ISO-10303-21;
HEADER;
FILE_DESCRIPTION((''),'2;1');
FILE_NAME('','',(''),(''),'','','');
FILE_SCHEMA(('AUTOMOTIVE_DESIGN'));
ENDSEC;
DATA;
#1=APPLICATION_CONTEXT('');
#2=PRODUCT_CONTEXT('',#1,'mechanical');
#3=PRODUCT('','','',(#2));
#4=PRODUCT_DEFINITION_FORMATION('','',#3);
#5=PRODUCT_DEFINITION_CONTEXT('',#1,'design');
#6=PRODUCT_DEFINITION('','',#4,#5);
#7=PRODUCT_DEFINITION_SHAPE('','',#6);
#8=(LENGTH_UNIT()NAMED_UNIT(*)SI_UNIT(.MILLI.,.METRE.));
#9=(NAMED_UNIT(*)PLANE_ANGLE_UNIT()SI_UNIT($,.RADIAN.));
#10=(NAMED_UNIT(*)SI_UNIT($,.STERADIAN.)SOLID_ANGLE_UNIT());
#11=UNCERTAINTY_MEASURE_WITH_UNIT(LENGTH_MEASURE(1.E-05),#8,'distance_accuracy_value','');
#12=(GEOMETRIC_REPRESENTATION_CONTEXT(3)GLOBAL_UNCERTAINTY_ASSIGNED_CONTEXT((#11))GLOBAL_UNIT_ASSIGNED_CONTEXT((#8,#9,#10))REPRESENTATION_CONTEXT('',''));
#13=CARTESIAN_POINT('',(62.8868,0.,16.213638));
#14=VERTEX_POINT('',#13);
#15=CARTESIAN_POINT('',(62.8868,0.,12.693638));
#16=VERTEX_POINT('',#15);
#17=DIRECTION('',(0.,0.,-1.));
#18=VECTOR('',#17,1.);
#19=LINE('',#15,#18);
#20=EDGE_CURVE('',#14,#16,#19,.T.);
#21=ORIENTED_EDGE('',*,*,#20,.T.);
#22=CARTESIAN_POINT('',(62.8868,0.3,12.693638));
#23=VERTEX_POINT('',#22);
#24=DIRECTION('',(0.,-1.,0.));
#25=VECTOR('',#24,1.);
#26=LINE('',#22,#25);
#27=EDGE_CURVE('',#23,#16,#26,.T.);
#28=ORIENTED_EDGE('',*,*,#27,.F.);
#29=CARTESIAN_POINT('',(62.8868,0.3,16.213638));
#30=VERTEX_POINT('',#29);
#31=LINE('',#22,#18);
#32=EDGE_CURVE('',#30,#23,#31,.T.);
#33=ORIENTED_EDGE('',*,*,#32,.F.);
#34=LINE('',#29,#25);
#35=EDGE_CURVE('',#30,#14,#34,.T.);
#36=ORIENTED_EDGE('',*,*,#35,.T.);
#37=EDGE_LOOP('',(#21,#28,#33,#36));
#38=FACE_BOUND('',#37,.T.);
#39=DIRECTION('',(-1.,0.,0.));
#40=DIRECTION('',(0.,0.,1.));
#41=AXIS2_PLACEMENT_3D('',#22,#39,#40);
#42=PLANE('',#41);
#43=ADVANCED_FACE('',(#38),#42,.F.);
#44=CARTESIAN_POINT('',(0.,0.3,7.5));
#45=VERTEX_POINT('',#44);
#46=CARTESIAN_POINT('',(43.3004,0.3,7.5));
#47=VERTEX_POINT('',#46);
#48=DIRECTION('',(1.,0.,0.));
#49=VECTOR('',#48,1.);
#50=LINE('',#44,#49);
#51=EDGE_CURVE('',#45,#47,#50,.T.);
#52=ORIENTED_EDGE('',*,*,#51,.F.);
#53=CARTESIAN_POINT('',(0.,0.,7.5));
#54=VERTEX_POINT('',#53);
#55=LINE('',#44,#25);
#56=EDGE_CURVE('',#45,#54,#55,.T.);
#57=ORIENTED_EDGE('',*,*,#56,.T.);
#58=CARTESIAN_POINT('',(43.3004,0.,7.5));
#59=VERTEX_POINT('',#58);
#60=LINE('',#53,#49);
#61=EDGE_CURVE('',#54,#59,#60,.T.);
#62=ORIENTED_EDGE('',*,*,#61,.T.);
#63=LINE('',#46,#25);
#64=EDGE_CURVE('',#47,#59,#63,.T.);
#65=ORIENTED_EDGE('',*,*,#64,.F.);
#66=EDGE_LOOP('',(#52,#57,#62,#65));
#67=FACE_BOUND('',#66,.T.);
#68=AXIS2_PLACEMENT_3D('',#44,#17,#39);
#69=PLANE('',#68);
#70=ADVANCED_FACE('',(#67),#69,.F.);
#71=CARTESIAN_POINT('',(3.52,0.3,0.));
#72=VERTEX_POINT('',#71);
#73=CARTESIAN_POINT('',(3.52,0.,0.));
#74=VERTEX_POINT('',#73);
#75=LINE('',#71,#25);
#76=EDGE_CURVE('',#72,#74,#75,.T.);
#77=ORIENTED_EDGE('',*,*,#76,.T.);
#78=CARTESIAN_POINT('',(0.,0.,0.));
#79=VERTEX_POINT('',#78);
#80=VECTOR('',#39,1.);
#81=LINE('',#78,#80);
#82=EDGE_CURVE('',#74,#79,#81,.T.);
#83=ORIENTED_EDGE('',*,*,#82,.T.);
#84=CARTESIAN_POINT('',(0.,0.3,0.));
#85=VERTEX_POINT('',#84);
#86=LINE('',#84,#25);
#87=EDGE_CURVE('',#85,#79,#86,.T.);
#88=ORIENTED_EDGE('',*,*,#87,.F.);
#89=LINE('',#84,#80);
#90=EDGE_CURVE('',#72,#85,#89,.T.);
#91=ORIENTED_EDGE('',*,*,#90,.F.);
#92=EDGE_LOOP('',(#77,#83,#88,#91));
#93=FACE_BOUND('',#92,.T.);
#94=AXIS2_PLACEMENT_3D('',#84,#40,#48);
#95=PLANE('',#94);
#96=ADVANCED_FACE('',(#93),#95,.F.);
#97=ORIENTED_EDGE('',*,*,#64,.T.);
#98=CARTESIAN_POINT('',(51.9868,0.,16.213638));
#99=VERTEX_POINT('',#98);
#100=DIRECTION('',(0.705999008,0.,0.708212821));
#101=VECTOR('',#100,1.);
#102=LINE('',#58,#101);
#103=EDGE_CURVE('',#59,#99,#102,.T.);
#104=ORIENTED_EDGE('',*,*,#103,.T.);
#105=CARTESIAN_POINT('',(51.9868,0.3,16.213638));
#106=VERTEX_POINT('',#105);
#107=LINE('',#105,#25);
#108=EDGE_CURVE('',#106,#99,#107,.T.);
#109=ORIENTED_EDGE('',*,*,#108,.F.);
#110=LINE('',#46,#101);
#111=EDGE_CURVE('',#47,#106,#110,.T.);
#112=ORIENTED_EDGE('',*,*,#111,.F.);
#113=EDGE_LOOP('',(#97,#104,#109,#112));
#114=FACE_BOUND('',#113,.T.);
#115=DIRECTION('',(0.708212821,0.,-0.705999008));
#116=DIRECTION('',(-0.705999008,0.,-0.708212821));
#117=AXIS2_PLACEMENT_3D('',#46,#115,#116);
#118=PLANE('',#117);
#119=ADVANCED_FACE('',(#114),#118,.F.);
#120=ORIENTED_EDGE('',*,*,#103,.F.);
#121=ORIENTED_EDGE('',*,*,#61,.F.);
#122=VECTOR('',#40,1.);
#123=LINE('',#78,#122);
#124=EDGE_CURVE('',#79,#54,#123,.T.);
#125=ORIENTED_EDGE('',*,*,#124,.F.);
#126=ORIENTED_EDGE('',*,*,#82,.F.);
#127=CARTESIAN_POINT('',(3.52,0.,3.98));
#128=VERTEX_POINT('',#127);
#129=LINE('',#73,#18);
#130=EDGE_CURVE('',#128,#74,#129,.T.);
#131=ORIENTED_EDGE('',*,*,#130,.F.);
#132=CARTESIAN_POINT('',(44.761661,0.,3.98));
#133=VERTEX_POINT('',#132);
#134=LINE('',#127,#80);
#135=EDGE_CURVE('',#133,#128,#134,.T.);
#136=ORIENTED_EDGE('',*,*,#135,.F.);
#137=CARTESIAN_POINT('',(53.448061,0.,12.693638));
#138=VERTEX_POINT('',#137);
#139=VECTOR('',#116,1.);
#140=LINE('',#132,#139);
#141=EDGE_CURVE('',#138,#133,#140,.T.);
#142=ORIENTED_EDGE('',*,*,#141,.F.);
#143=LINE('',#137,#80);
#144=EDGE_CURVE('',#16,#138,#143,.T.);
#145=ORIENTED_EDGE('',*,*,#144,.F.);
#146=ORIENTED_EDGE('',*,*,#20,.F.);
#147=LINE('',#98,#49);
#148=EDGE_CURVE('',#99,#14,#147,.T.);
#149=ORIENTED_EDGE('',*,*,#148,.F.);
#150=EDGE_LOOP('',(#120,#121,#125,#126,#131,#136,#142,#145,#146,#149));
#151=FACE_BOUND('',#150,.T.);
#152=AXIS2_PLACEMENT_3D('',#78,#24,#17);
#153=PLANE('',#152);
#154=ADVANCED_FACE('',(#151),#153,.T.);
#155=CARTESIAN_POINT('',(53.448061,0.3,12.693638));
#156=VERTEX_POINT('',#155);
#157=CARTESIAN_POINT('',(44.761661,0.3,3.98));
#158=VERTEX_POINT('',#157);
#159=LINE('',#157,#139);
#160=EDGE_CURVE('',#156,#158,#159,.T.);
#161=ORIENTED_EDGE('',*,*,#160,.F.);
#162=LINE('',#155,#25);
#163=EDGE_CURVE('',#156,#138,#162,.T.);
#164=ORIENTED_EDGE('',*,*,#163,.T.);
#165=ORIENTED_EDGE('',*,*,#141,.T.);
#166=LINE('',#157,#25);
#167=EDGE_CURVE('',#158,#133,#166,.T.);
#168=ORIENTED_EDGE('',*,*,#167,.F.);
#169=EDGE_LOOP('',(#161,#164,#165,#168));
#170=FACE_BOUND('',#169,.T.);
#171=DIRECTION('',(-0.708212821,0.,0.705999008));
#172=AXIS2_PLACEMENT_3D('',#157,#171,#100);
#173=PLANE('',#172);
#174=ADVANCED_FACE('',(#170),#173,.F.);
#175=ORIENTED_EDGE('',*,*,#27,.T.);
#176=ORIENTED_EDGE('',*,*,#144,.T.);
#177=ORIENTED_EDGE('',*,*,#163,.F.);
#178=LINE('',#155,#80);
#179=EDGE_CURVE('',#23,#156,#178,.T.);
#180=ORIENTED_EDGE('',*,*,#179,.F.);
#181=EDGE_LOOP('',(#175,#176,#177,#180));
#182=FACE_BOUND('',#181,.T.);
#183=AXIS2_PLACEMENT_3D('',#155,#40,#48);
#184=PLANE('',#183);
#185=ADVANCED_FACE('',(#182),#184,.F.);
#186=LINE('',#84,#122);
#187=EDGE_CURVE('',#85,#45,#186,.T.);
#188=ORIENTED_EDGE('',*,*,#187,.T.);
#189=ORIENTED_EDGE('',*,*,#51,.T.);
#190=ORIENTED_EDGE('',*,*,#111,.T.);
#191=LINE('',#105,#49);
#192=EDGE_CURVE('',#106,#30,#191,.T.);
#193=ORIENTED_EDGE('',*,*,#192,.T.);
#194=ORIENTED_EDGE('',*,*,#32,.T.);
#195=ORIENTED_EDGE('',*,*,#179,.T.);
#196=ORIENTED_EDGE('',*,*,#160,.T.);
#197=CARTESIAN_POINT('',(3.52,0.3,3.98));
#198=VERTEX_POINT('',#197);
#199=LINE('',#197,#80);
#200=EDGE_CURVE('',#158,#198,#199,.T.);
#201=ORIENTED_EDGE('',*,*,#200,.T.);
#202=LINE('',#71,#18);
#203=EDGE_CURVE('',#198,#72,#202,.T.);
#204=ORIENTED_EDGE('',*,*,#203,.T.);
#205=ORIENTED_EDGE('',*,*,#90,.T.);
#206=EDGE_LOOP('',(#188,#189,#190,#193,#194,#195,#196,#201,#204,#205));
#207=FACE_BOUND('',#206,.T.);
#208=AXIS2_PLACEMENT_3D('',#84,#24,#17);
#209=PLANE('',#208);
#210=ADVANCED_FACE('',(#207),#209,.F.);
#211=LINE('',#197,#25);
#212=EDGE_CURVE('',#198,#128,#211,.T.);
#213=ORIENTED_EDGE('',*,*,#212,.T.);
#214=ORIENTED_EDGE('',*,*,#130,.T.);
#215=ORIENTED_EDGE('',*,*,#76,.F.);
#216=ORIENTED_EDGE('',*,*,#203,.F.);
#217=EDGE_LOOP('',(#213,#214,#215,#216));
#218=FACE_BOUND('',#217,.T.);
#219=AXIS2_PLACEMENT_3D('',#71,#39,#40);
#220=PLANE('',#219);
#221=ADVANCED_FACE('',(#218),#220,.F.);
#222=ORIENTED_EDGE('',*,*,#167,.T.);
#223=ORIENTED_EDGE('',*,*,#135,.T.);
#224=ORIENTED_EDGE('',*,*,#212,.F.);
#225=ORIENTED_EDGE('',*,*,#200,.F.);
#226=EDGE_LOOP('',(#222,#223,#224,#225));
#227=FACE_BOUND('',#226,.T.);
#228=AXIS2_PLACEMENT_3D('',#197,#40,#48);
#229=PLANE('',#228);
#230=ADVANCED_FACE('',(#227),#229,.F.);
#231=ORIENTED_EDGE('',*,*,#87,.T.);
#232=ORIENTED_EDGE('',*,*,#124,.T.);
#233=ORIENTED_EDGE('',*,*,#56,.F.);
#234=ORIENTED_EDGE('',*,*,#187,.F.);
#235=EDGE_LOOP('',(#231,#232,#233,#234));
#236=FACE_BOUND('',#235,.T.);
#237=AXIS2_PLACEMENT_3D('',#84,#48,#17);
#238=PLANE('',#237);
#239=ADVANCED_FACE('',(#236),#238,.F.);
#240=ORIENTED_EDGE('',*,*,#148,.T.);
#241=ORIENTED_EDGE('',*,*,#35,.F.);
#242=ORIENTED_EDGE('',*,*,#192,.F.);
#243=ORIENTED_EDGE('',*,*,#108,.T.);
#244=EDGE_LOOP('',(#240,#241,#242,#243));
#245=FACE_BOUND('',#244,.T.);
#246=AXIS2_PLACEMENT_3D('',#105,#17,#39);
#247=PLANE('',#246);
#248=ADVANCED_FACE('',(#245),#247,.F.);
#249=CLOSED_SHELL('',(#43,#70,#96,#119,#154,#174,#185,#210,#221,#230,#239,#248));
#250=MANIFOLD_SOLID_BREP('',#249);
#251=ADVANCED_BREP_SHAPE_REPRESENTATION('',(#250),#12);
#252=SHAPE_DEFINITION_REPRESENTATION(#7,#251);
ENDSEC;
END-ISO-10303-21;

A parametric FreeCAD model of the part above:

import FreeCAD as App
import Part
import Sketcher
Q = App.Units.Quantity

doc = App.newDocument("Part")
body = doc.addObject("PartDesign::Body", "Body")

sketch1 = body.newObject("Sketcher::SketchObject", "Sketch")
sketch1.AttachmentSupport = (doc.getObject("XZ_Plane"), [""])
sketch1.MapMode = "FlatFace"
sketch1.addGeometry([
    Part.LineSegment(App.Vector(0, 0, 0), App.Vector(0, 7.5, 0)),
    Part.LineSegment(App.Vector(0, 7.5, 0), App.Vector(43.3, 7.5, 0)),
    Part.LineSegment(App.Vector(43.3, 7.5, 0), App.Vector(52, 16.2, 0)),
    Part.LineSegment(App.Vector(52, 16.2, 0), App.Vector(62.9, 16.2, 0)),
    Part.LineSegment(App.Vector(62.9, 16.2, 0), App.Vector(62.9, 12.7, 0)),
    Part.LineSegment(App.Vector(62.9, 12.7, 0), App.Vector(53.4, 12.7, 0)),
    Part.LineSegment(App.Vector(53.4, 12.7, 0), App.Vector(44.8, 4, 0)),
    Part.LineSegment(App.Vector(44.8, 4, 0), App.Vector(3.5, 4, 0)),
    Part.LineSegment(App.Vector(3.5, 4, 0), App.Vector(3.5, 0, 0)),
    Part.LineSegment(App.Vector(3.5, 0, 0), App.Vector(0, 0, 0)),
], False)
sketch1.addConstraint([
    Sketcher.Constraint("Coincident", 0, 2, 1, 1),
    Sketcher.Constraint("Coincident", 1, 2, 2, 1),
    Sketcher.Constraint("Coincident", 2, 2, 3, 1),
    Sketcher.Constraint("Coincident", 3, 2, 4, 1),
    Sketcher.Constraint("Coincident", 4, 2, 5, 1),
    Sketcher.Constraint("Coincident", 5, 2, 6, 1),
    Sketcher.Constraint("Coincident", 6, 2, 7, 1),
    Sketcher.Constraint("Coincident", 7, 2, 8, 1),
    Sketcher.Constraint("Coincident", 8, 2, 9, 1),
    Sketcher.Constraint("Coincident", 9, 2, 0, 1),
    Sketcher.Constraint("Vertical", 0),
    Sketcher.Constraint("Horizontal", 1),
    Sketcher.Constraint("Horizontal", 3),
    Sketcher.Constraint("Vertical", 4),
    Sketcher.Constraint("Horizontal", 5),
    Sketcher.Constraint("Horizontal", 7),
    Sketcher.Constraint("Vertical", 8),
    Sketcher.Constraint("Horizontal", 9),
    Sketcher.Constraint("Coincident", 9, 2, -1, 1),
    Sketcher.Constraint("Parallel", 2, 6),
    Sketcher.Constraint("Equal", 9, 4),
    Sketcher.Constraint("Equal", 2, 6),
    Sketcher.Constraint("DistanceX", 3, 1, 3, 2, Q("10.9 mm")),
    Sketcher.Constraint("DistanceY", 0, 1, 0, 2, Q("7.5 mm")),
    Sketcher.Constraint("DistanceX", 9, 2, 9, 1, Q("3.52 mm")),
    Sketcher.Constraint("DistanceX", 1, 1, 1, 2, Q("43.3004 mm")),
    Sketcher.Constraint("Distance", 2, Q("12.3037 mm")),
    Sketcher.Constraint("DistanceX", 5, 2, 5, 1, Q("9.438739 mm")),
    Sketcher.Constraint("DistanceX", -1, 1, 2, 2, Q("51.9868 mm")),
])
pad1 = body.newObject("PartDesign::Pad", "Pad")
pad1.Profile = sketch1
pad1.Length = 0.3
pad1.Reversed = True

doc.recompute()
